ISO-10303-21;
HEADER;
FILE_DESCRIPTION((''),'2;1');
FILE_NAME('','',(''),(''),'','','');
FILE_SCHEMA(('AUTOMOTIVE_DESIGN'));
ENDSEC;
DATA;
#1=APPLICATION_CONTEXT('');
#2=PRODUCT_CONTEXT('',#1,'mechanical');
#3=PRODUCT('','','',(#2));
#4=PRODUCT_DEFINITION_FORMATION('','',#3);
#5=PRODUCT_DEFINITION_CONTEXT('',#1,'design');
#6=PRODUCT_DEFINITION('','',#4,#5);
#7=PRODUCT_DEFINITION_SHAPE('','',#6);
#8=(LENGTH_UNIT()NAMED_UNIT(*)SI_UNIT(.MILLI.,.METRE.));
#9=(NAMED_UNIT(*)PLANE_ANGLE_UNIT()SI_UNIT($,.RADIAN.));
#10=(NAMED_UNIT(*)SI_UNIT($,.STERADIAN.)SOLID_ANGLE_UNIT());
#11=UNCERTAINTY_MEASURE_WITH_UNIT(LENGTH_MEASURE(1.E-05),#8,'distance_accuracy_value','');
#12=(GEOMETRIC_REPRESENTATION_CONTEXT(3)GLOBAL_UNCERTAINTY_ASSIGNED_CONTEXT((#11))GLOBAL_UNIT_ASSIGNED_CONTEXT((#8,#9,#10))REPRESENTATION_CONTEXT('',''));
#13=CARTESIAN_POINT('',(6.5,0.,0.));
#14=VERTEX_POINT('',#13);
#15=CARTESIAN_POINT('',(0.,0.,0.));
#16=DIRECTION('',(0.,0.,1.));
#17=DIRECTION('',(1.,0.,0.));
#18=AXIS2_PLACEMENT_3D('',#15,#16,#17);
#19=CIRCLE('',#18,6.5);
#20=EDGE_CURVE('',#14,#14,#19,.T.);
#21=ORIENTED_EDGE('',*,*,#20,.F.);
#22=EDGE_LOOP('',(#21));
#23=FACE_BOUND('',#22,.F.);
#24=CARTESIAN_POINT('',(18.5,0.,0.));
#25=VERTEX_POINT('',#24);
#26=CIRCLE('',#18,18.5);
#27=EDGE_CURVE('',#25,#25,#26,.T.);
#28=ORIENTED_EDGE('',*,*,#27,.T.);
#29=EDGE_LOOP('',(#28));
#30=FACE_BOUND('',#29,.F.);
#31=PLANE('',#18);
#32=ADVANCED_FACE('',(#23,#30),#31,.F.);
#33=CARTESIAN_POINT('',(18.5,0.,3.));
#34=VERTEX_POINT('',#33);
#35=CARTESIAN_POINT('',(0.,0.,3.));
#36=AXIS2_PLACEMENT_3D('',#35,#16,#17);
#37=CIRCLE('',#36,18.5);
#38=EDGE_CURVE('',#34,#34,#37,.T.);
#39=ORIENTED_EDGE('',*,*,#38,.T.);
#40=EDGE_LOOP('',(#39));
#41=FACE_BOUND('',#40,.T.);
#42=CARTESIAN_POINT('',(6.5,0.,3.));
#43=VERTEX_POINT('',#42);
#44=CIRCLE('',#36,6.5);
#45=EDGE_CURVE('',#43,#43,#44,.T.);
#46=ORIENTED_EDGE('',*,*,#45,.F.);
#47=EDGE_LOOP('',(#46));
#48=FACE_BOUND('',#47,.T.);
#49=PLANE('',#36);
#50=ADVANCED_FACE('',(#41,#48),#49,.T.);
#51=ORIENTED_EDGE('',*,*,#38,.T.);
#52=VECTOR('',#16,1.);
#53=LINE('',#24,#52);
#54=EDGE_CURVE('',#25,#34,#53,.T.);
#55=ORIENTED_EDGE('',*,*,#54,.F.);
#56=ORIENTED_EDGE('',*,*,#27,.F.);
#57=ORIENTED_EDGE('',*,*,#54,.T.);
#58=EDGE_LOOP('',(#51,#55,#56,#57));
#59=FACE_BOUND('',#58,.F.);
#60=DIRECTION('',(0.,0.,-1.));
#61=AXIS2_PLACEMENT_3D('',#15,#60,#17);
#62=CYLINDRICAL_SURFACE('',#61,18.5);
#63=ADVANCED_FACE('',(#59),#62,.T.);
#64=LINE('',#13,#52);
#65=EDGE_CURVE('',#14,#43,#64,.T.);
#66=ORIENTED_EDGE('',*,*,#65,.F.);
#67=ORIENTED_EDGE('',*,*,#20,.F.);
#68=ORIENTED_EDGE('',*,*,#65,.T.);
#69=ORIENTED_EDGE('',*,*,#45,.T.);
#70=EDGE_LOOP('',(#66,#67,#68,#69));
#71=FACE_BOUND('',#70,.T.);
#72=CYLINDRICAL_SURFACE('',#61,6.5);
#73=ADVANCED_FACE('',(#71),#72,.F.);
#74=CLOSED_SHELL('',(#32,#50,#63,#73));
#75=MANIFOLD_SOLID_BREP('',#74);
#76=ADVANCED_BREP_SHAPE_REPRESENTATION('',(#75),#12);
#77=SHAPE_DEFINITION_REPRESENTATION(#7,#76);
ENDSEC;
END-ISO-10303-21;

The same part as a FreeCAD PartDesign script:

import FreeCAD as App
import Part
import Sketcher
from FreeCAD import Vector
Q = App.Units.Quantity

doc = App.newDocument("Part")
params = doc.addObject("Spreadsheet::Sheet", "Params")
for row, (alias, value) in enumerate([
    ("sketch1_diameter", "37 mm"),
    ("sketch1_diameter2", "13 mm"),
    ("pad1_length", "3 mm"),
], start=1):
    params.set(f"A{row}", alias)
    params.set(f"B{row}", "=" + value)
    params.setAlias(f"B{row}", alias)

body = doc.addObject("PartDesign::Body", "Body")

# Sketch on XY plane
sketch1 = doc.addObject("Sketcher::SketchObject", "Sketch")
body.addObject(sketch1)
sketch1.AttachmentSupport = (doc.XY_Plane, [""])
sketch1.MapMode = "FlatFace"
sketch1.addGeometry(Part.Circle(Vector(0, 0, 0), Vector(0, 0, 1), 18), False)
sketch1.addGeometry(Part.Circle(Vector(0, 0, 0), Vector(0, 0, 1), 6), False)
sketch1.addConstraint(Sketcher.Constraint("Coincident", 0, 3, -1, 1))
sketch1.addConstraint(Sketcher.Constraint("Coincident", 1, 3, -1, 1))
sketch1.addConstraint(Sketcher.Constraint("Diameter", 0, Q("37 mm")))
sketch1.addConstraint(Sketcher.Constraint("Diameter", 1, Q("13 mm")))
sketch1.setExpression("Constraints[2]", "Params.sketch1_diameter")
sketch1.setExpression("Constraints[3]", "Params.sketch1_diameter2")
pad1 = doc.addObject("PartDesign::Pad", "Pad")
body.addObject(pad1)
pad1.Profile = sketch1
pad1.setExpression("Length", "Params.pad1_length")

doc.recompute()
